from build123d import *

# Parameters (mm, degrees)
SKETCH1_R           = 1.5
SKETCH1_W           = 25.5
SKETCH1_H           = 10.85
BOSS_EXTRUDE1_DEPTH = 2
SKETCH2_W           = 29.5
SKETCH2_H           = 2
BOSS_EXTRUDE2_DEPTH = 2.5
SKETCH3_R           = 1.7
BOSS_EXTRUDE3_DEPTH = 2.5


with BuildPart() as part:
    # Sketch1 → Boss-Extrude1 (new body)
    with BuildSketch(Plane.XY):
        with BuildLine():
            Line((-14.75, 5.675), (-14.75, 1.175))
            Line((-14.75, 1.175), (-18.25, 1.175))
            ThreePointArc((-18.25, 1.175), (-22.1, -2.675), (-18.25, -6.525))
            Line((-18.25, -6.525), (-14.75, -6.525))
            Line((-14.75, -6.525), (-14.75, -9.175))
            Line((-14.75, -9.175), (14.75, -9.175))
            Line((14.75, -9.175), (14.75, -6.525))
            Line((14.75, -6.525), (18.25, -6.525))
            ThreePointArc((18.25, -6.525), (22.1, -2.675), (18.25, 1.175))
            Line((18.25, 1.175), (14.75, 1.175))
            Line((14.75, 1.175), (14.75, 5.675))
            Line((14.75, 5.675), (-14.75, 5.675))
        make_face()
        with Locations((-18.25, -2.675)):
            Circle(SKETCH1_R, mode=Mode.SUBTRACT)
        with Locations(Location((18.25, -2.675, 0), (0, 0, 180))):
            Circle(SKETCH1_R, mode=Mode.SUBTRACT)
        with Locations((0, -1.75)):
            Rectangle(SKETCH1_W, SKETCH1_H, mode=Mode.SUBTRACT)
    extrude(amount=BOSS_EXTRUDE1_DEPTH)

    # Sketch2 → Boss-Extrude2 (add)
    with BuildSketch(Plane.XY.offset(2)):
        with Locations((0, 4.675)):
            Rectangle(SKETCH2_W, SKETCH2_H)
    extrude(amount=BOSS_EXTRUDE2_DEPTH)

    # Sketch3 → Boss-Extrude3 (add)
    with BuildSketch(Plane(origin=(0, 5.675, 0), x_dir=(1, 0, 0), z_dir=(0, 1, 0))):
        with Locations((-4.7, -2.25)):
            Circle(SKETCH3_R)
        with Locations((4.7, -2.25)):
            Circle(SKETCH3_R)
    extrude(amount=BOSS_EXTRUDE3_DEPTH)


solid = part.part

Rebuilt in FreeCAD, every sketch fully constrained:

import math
import FreeCAD as App
import Part
import Sketcher
from FreeCAD import Vector


def add_polygon(sketch, points):
    """Adds a closed chain of lines whose ends are joined by coincident constraints."""
    first, n = sketch.GeometryCount, len(points)
    for a, b in zip(points, points[1:] + points[:1]):
        sketch.addGeometry(Part.LineSegment(App.Vector(*a, 0), App.Vector(*b, 0)), False)
    for i in range(n):
        sketch.addConstraint(Sketcher.Constraint("Coincident", first + i, 2, first + (i + 1) % n, 1))

doc = App.newDocument("Part")
body = doc.addObject("PartDesign::Body", "Body")

# Sketch on XY plane
sketch1 = doc.addObject("Sketcher::SketchObject", "Sketch")
body.addObject(sketch1)
sketch1.AttachmentSupport = (doc.XY_Plane, [""])
sketch1.MapMode = "FlatFace"
sketch1.addGeometry(Part.LineSegment(Vector(-14.8, 5.7, 0), Vector(-14.8, 1.2, 0)), False)  # 0
sketch1.addGeometry(Part.LineSegment(Vector(-14.8, 1.2, 0), Vector(-18.2, 1.2, 0)), False)  # 1
sketch1.addGeometry(Part.ArcOfCircle(Part.Circle(Vector(-18.2, -2.7, 0), Vector(0, 0, 1), 3.9), math.radians(90), math.radians(270)), False)  # 2
sketch1.addGeometry(Part.LineSegment(Vector(-18.2, -6.5, 0), Vector(-14.8, -6.5, 0)), False)  # 3
sketch1.addGeometry(Part.LineSegment(Vector(-14.8, -6.5, 0), Vector(-14.8, -9.2, 0)), False)  # 4
sketch1.addGeometry(Part.LineSegment(Vector(-14.8, -9.2, 0), Vector(14.8, -9.2, 0)), False)  # 5
sketch1.addGeometry(Part.LineSegment(Vector(14.8, -9.2, 0), Vector(14.8, -6.5, 0)), False)  # 6
sketch1.addGeometry(Part.LineSegment(Vector(14.8, -6.5, 0), Vector(18.2, -6.5, 0)), False)  # 7
sketch1.addGeometry(Part.ArcOfCircle(Part.Circle(Vector(18.2, -2.7, 0), Vector(0, 0, 1), 3.9), math.radians(-90), math.radians(90)), False)  # 8
sketch1.addGeometry(Part.LineSegment(Vector(18.2, 1.2, 0), Vector(14.8, 1.2, 0)), False)  # 9
sketch1.addGeometry(Part.LineSegment(Vector(14.8, 1.2, 0), Vector(14.8, 5.7, 0)), False)  # 10
sketch1.addGeometry(Part.LineSegment(Vector(14.8, 5.7, 0), Vector(-14.8, 5.7, 0)), False)  # 11
sketch1.addGeometry(Part.Circle(Vector(-18.2, -2.7, 0), Vector(0, 0, 1), 1.5), False)  # 12
sketch1.addGeometry(Part.Circle(Vector(18.2, -2.7, 0), Vector(0, 0, 1), 1.5), False)  # 13
add_polygon(sketch1, [(12.8, -7.2), (-12.8, -7.2), (-12.8, 3.7), (12.8, 3.7)])  # lines 14-17
sketch1.addConstraint([
    Sketcher.Constraint("Coincident", 0, 2, 1, 1),
    Sketcher.Constraint("Tangent", 1, 2, 2, 1),
    Sketcher.Constraint("Tangent", 2, 2, 3, 1),
    Sketcher.Constraint("Coincident", 3, 2, 4, 1),
    Sketcher.Constraint("Coincident", 4, 2, 5, 1),
    Sketcher.Constraint("Coincident", 5, 2, 6, 1),
    Sketcher.Constraint("Coincident", 6, 2, 7, 1),
    Sketcher.Constraint("Tangent", 7, 2, 8, 1),
    Sketcher.Constraint("Tangent", 8, 2, 9, 1),
    Sketcher.Constraint("Coincident", 9, 2, 10, 1),
    Sketcher.Constraint("Coincident", 10, 2, 11, 1),
    Sketcher.Constraint("Coincident", 11, 2, 0, 1),
    Sketcher.Constraint("Vertical", 0),
    Sketcher.Constraint("Horizontal", 1),
    Sketcher.Constraint("Horizontal", 3),
    Sketcher.Constraint("Vertical", 4),
    Sketcher.Constraint("Horizontal", 5),
    Sketcher.Constraint("Vertical", 6),
    Sketcher.Constraint("Horizontal", 7),
    Sketcher.Constraint("Horizontal", 9),
    Sketcher.Constraint("Vertical", 10),
    Sketcher.Constraint("Horizontal", 11),
    Sketcher.Constraint("Horizontal", 14),
    Sketcher.Constraint("Vertical", 15),
    Sketcher.Constraint("Horizontal", 16),
    Sketcher.Constraint("Vertical", 17),
    Sketcher.Constraint("Coincident", 12, 3, 2, 3),
    Sketcher.Constraint("Coincident", 13, 3, 8, 3),
    Sketcher.Constraint("Equal", 2, 8),
    Sketcher.Constraint("Equal", 12, 13),
    Sketcher.Constraint("Symmetric", 2, 3, 8, 3, -2),
    Sketcher.Constraint("Vertical", 0, 2, 3, 2),
    Sketcher.Constraint("Vertical", 6, 2, 9, 2),
    Sketcher.Constraint("Equal", 3, 7),
    Sketcher.Constraint("Diameter", 12, 3.0),
    Sketcher.Constraint("Radius", 2, 3.85),
    Sketcher.Constraint("DistanceX", 1, 2, 1, 1, 3.5),
    Sketcher.Constraint("DistanceX", 5, 1, 5, 2, 29.5),
    Sketcher.Constraint("DistanceX", 14, 2, 14, 1, 25.5),
    Sketcher.Constraint("DistanceY", 0, 2, 0, 1, 4.5),
    Sketcher.Constraint("DistanceX", 3, 2, 14, 2, 2.0),
    Sketcher.Constraint("DistanceY", 4, 2, 14, 2, 2.0),
    Sketcher.Constraint("DistanceY", 15, 2, 11, 2, 2.0),
    Sketcher.Constraint("DistanceY", 4, 2, 4, 1, 2.65),
    Sketcher.Constraint("DistanceY", 2, 3, -1, 1, 2.675),
])
pad1 = doc.addObject("PartDesign::Pad", "Pad")
body.addObject(pad1)
pad1.Profile = sketch1
pad1.Length = 2

# Sketch on XY plane
sketch2 = doc.addObject("Sketcher::SketchObject", "Sketch001")
body.addObject(sketch2)
sketch2.AttachmentSupport = (doc.XY_Plane, [""])
sketch2.MapMode = "FlatFace"
sketch2.AttachmentOffset = App.Placement(Vector(0, 0, 2), App.Rotation())
add_polygon(sketch2, [(-14.8, 5.7), (-14.8, 3.7), (14.8, 3.7), (14.8, 5.7)])  # lines 0-3
sketch2.addConstraint([
    Sketcher.Constraint("Vertical", 0),
    Sketcher.Constraint("Horizontal", 1),
    Sketcher.Constraint("Vertical", 2),
    Sketcher.Constraint("Horizontal", 3),
    Sketcher.Constraint("DistanceY", 0, 2, 0, 1, 2.0),
    Sketcher.Constraint("DistanceX", 1, 1, 1, 2, 29.5),
    Sketcher.Constraint("DistanceX", 0, 2, -1, 1, 14.75),
    Sketcher.Constraint("DistanceY", -1, 1, 0, 2, 3.675),
])
pad2 = doc.addObject("PartDesign::Pad", "Pad001")
body.addObject(pad2)
pad2.Profile = sketch2
pad2.Length = 2.5

# Sketch on XZ plane
sketch3 = doc.addObject("Sketcher::SketchObject", "Sketch002")
body.addObject(sketch3)
sketch3.AttachmentSupport = (doc.XZ_Plane, [""])
sketch3.MapMode = "FlatFace"
sketch3.AttachmentOffset = App.Placement(Vector(0, 0, -5.675), App.Rotation())
sketch3.addGeometry([
    Part.Circle(Vector(-4.7, 2.2, 0), Vector(0, 0, 1), 1.7),
    Part.Circle(Vector(4.7, 2.2, 0), Vector(0, 0, 1), 1.7),
], False)
sketch3.addConstraint([
    Sketcher.Constraint("Equal", 0, 1),
    Sketcher.Constraint("Symmetric", 0, 3, 1, 3, -2),
    Sketcher.Constraint("Diameter", 0, 3.4),
    Sketcher.Constraint("DistanceX", 0, 3, -1, 1, 4.7),
    Sketcher.Constraint("DistanceY", -1, 1, 0, 3, 2.25),
])
pad3 = doc.addObject("PartDesign::Pad", "Pad002")
body.addObject(pad3)
pad3.Profile = sketch3
pad3.Length = 2.5
pad3.Reversed = True

doc.recompute()
